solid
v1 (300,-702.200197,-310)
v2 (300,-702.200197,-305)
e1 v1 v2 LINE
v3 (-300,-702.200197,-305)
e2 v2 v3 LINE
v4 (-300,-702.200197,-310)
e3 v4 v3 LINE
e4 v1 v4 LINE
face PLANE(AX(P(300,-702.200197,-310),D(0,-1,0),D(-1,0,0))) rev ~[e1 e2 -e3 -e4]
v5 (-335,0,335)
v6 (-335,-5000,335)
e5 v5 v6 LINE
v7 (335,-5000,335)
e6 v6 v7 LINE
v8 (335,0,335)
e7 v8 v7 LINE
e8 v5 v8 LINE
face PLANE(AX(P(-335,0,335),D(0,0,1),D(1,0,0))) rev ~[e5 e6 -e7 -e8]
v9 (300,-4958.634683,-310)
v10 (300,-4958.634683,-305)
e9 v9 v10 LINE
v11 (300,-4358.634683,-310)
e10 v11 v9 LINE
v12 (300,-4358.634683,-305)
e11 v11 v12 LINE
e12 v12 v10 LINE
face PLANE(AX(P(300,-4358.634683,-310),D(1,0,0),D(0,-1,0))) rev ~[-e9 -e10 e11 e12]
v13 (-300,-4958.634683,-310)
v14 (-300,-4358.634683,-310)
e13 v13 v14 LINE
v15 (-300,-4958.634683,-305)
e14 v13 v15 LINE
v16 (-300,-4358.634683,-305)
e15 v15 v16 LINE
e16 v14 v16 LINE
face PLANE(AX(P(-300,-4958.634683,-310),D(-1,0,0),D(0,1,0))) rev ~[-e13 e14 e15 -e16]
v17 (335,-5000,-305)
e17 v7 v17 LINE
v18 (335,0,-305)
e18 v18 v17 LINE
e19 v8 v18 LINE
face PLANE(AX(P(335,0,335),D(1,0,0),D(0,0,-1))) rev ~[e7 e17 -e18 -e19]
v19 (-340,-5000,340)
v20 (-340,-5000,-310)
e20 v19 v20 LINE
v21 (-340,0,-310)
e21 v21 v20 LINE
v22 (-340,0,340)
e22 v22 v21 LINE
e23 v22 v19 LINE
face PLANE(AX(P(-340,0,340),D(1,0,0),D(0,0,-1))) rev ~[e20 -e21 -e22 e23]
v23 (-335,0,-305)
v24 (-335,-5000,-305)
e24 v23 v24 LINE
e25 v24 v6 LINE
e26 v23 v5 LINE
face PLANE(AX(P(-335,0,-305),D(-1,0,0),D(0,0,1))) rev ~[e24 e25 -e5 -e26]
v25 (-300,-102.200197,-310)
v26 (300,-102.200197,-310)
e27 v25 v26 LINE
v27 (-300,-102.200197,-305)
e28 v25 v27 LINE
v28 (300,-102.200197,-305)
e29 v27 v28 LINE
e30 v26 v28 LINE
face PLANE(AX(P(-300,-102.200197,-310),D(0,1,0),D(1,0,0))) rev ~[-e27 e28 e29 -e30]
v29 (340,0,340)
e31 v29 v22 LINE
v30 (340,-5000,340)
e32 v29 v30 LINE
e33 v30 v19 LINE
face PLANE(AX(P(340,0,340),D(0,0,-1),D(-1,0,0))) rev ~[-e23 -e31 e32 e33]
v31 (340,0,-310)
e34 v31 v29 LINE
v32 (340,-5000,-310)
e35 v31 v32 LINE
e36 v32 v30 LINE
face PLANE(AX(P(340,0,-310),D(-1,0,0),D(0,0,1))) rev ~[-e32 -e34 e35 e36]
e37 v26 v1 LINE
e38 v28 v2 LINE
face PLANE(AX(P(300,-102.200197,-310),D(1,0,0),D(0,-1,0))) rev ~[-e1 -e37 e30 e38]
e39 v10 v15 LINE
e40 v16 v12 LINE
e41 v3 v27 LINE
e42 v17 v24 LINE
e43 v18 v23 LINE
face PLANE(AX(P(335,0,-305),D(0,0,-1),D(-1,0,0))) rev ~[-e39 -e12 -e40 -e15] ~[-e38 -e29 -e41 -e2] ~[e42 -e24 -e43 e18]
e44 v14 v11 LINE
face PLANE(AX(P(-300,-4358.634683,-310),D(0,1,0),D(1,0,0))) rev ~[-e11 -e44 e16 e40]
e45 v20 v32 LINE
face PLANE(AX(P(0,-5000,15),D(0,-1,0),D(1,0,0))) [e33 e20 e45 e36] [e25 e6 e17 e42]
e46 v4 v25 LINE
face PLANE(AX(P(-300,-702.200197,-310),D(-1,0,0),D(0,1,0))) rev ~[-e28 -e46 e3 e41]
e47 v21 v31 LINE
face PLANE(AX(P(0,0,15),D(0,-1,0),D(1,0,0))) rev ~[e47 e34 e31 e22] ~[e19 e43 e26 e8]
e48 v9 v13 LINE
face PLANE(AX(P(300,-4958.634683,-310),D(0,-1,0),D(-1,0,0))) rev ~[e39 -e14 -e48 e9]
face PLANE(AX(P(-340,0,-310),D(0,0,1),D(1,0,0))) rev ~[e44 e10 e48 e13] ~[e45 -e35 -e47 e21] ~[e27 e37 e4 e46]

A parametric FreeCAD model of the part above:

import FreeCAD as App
import Part
import Sketcher

doc = App.newDocument("Part")
body = doc.addObject("PartDesign::Body", "Body")

sketch1 = body.newObject("Sketcher::SketchObject", "Sketch")
sketch1.AttachmentSupport = (doc.getObject("XZ_Plane"), [""])
sketch1.MapMode = "FlatFace"
sketch1.addGeometry([
    Part.LineSegment(App.Vector(340, -310, 0), App.Vector(340, 340, 0)),
    Part.LineSegment(App.Vector(340, 340, 0), App.Vector(-340, 340, 0)),
    Part.LineSegment(App.Vector(-340, 340, 0), App.Vector(-340, -310, 0)),
    Part.LineSegment(App.Vector(-340, -310, 0), App.Vector(340, -310, 0)),
    Part.LineSegment(App.Vector(-335, 335, 0), App.Vector(335, 335, 0)),
    Part.LineSegment(App.Vector(335, 335, 0), App.Vector(335, -305, 0)),
    Part.LineSegment(App.Vector(335, -305, 0), App.Vector(-335, -305, 0)),
    Part.LineSegment(App.Vector(-335, -305, 0), App.Vector(-335, 335, 0)),
], False)
sketch1.addConstraint([
    Sketcher.Constraint("Coincident", 0, 2, 1, 1),
    Sketcher.Constraint("Coincident", 1, 2, 2, 1),
    Sketcher.Constraint("Coincident", 2, 2, 3, 1),
    Sketcher.Constraint("Coincident", 3, 2, 0, 1),
    Sketcher.Constraint("Coincident", 4, 2, 5, 1),
    Sketcher.Constraint("Coincident", 5, 2, 6, 1),
    Sketcher.Constraint("Coincident", 6, 2, 7, 1),
    Sketcher.Constraint("Coincident", 7, 2, 4, 1),
    Sketcher.Constraint("Vertical", 0),
    Sketcher.Constraint("Horizontal", 1),
    Sketcher.Constraint("Vertical", 2),
    Sketcher.Constraint("Horizontal", 3),
    Sketcher.Constraint("Horizontal", 4),
    Sketcher.Constraint("Vertical", 5),
    Sketcher.Constraint("Horizontal", 6),
    Sketcher.Constraint("Vertical", 7),
    Sketcher.Constraint("DistanceX", 1, 2, 1, 1, 680.0),
    Sketcher.Constraint("DistanceX", 4, 1, 4, 2, 670.0),
    Sketcher.Constraint("DistanceY", 0, 1, 0, 2, 650.0),
    Sketcher.Constraint("DistanceY", 5, 2, 5, 1, 640.0),
    Sketcher.Constraint("DistanceX", -1, 1, 0, 2, 340.0),
    Sketcher.Constraint("DistanceY", -1, 1, 0, 2, 340.0),
    Sketcher.Constraint("DistanceX", -1, 1, 4, 2, 335.0),
    Sketcher.Constraint("DistanceY", -1, 1, 4, 2, 335.0),
])
pad1 = body.newObject("PartDesign::Pad", "Pad")
pad1.Profile = sketch1
pad1.Length = 5000

sketch2 = body.newObject("Sketcher::SketchObject", "Sketch001")
sketch2.AttachmentSupport = (doc.getObject("XY_Plane"), [""])
sketch2.MapMode = "FlatFace"
sketch2.AttachmentOffset = App.Placement(App.Vector(0, 0, -310), App.Rotation())
sketch2.addGeometry([
    Part.LineSegment(App.Vector(-300, -4359, 0), App.Vector(300, -4359, 0)),
    Part.LineSegment(App.Vector(300, -4359, 0), App.Vector(300, -4959, 0)),
    Part.LineSegment(App.Vector(300, -4959, 0), App.Vector(-300, -4959, 0)),
    Part.LineSegment(App.Vector(-300, -4959, 0), App.Vector(-300, -4359, 0)),
    Part.LineSegment(App.Vector(300, -702, 0), App.Vector(-300, -702, 0)),
    Part.LineSegment(App.Vector(-300, -702, 0), App.Vector(-300, -102, 0)),
    Part.LineSegment(App.Vector(-300, -102, 0), App.Vector(300, -102, 0)),
    Part.LineSegment(App.Vector(300, -102, 0), App.Vector(300, -702, 0)),
], False)
sketch2.addConstraint([
    Sketcher.Constraint("Coincident", 0, 2, 1, 1),
    Sketcher.Constraint("Coincident", 1, 2, 2, 1),
    Sketcher.Constraint("Coincident", 2, 2, 3, 1),
    Sketcher.Constraint("Coincident", 3, 2, 0, 1),
    Sketcher.Constraint("Coincident", 4, 2, 5, 1),
    Sketcher.Constraint("Coincident", 5, 2, 6, 1),
    Sketcher.Constraint("Coincident", 6, 2, 7, 1),
    Sketcher.Constraint("Coincident", 7, 2, 4, 1),
    Sketcher.Constraint("Horizontal", 0),
    Sketcher.Constraint("Vertical", 1),
    Sketcher.Constraint("Horizontal", 2),
    Sketcher.Constraint("Vertical", 3),
    Sketcher.Constraint("Horizontal", 4),
    Sketcher.Constraint("Vertical", 5),
    Sketcher.Constraint("Horizontal", 6),
    Sketcher.Constraint("Vertical", 7),
    Sketcher.Constraint("Vertical", 3, 2, 4, 2),
    Sketcher.Constraint("Vertical", 1, 2, 6, 2),
    Sketcher.Constraint("Equal", 6, 1),
    Sketcher.Constraint("Equal", 3, 5),
    Sketcher.Constraint("DistanceX", 0, 1, 0, 2, 600.0),
    Sketcher.Constraint("DistanceX", -1, 1, 0, 2, 300.0),
    Sketcher.Constraint("DistanceY", 0, 2, -1, 1, 4358.634683),
    Sketcher.Constraint("DistanceY", 4, 2, -1, 1, 702.200197),
])
pocket1 = body.newObject("PartDesign::Pocket", "Pocket")
pocket1.Profile = sketch2
pocket1.Length = 25
pocket1.Reversed = True

doc.recompute()
